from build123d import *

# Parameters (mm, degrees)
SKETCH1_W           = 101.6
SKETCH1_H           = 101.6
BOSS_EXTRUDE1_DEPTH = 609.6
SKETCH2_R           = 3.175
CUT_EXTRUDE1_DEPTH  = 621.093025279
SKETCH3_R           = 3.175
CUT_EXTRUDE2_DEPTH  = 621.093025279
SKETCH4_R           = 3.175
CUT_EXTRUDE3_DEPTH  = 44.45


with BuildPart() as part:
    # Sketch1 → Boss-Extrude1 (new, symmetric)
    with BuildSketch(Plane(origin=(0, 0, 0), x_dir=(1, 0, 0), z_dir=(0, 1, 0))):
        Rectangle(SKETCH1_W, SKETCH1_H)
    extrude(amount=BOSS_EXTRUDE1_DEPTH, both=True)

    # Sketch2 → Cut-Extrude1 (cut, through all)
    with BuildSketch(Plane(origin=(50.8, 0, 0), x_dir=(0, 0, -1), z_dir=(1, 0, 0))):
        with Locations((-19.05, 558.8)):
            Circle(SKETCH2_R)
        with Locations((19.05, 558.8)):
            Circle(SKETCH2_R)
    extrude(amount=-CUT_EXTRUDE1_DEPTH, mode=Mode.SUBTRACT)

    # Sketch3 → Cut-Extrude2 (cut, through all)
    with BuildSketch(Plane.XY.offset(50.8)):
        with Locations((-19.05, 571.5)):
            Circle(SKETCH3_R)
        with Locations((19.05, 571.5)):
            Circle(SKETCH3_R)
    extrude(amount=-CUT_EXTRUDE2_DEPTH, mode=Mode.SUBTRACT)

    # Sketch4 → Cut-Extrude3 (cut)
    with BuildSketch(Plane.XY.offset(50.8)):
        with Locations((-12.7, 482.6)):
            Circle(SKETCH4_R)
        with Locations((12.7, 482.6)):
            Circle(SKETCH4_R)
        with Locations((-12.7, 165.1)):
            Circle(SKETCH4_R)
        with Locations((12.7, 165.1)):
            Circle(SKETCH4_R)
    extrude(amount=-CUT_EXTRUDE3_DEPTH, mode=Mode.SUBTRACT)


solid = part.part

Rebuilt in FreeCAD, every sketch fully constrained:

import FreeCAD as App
import Part
import Sketcher
from FreeCAD import Vector
Q = App.Units.Quantity


def add_polygon(sketch, points):
    """Adds a closed chain of lines whose ends are joined by coincident constraints."""
    first, n = sketch.GeometryCount, len(points)
    for a, b in zip(points, points[1:] + points[:1]):
        sketch.addGeometry(Part.LineSegment(App.Vector(*a, 0), App.Vector(*b, 0)), False)
    for i in range(n):
        sketch.addConstraint(Sketcher.Constraint("Coincident", first + i, 2, first + (i + 1) % n, 1))

doc = App.newDocument("Part")
body = doc.addObject("PartDesign::Body", "Body")

# Sketch on XZ plane
sketch1 = doc.addObject("Sketcher::SketchObject", "Sketch")
body.addObject(sketch1)
sketch1.AttachmentSupport = (doc.XZ_Plane, [""])
sketch1.MapMode = "FlatFace"
add_polygon(sketch1, [(-51, -51), (-51, 51), (51, 51), (51, -51)])  # lines 0-3
sketch1.addConstraint([
    Sketcher.Constraint("Vertical", 0),
    Sketcher.Constraint("Horizontal", 1),
    Sketcher.Constraint("Vertical", 2),
    Sketcher.Constraint("Horizontal", 3),
    Sketcher.Constraint("Symmetric", 0, 2, 2, 2, -1, 1),
    Sketcher.Constraint("Equal", 3, 0),
    Sketcher.Constraint("DistanceX", 1, 1, 1, 2, Q("4 in")),
])
pad1 = doc.addObject("PartDesign::Pad", "Pad")
body.addObject(pad1)
pad1.Profile = sketch1
pad1.Length = Q("48 in")
pad1.Midplane = True

# Sketch on YZ plane
sketch2 = doc.addObject("Sketcher::SketchObject", "Sketch001")
body.addObject(sketch2)
sketch2.AttachmentSupport = (doc.YZ_Plane, [""])
sketch2.MapMode = "FlatFace"
sketch2.AttachmentOffset = App.Placement(Vector(0, 0, 2 * 25.4), App.Rotation())
sketch2.addGeometry([
    Part.Circle(Vector(558.8, 19.1, 0), Vector(0, 0, 1), 3.2),
    Part.Circle(Vector(558.8, -19.1, 0), Vector(0, 0, 1), 3.2),
], False)
sketch2.addConstraint([
    Sketcher.Constraint("Equal", 0, 1),
    Sketcher.Constraint("Symmetric", 0, 3, 1, 3, -1),
    Sketcher.Constraint("Diameter", 0, Q("0.25 in")),
    Sketcher.Constraint("DistanceX", -1, 1, 0, 3, Q("22 in")),
    Sketcher.Constraint("DistanceY", 1, 3, 0, 3, Q("1.5 in")),
])
pocket1 = doc.addObject("PartDesign::Pocket", "Pocket")
body.addObject(pocket1)
pocket1.Profile = sketch2
pocket1.Type = "ThroughAll"

# Sketch on XY plane
sketch3 = doc.addObject("Sketcher::SketchObject", "Sketch002")
body.addObject(sketch3)
sketch3.AttachmentSupport = (doc.XY_Plane, [""])
sketch3.MapMode = "FlatFace"
sketch3.AttachmentOffset = App.Placement(Vector(0, 0, 2 * 25.4), App.Rotation())
sketch3.addGeometry([
    Part.Circle(Vector(-19.1, 571.5, 0), Vector(0, 0, 1), 3.2),
    Part.Circle(Vector(19.1, 571.5, 0), Vector(0, 0, 1), 3.2),
], False)
sketch3.addConstraint([
    Sketcher.Constraint("Equal", 0, 1),
    Sketcher.Constraint("Symmetric", 0, 3, 1, 3, -2),
    Sketcher.Constraint("Diameter", 0, Q("0.25 in")),
    Sketcher.Constraint("DistanceY", -1, 1, 0, 3, Q("22.5 in")),
    Sketcher.Constraint("DistanceX", 0, 3, 1, 3, Q("1.5 in")),
])
pocket2 = doc.addObject("PartDesign::Pocket", "Pocket001")
body.addObject(pocket2)
pocket2.Profile = sketch3
pocket2.Type = "ThroughAll"

# Sketch on XY plane
sketch4 = doc.addObject("Sketcher::SketchObject", "Sketch003")
body.addObject(sketch4)
sketch4.AttachmentSupport = (doc.XY_Plane, [""])
sketch4.MapMode = "FlatFace"
sketch4.AttachmentOffset = App.Placement(Vector(0, 0, 2 * 25.4), App.Rotation())
sketch4.addGeometry([
    Part.Circle(Vector(-12.7, 482.6, 0), Vector(0, 0, 1), 3.2),
    Part.Circle(Vector(12.7, 482.6, 0), Vector(0, 0, 1), 3.2),
    Part.Circle(Vector(-12.7, 165.1, 0), Vector(0, 0, 1), 3.2),
    Part.Circle(Vector(12.7, 165.1, 0), Vector(0, 0, 1), 3.2),
], False)
sketch4.addConstraint([
    Sketcher.Constraint("Equal", 0, 1),
    Sketcher.Constraint("Equal", 1, 2),
    Sketcher.Constraint("Equal", 2, 3),
    Sketcher.Constraint("Symmetric", 0, 3, 1, 3, -2),
    Sketcher.Constraint("Symmetric", 2, 3, 3, 3, -2),
    Sketcher.Constraint("Vertical", 0, 3, 2, 3),
    Sketcher.Constraint("Diameter", 0, Q("0.25 in")),
    Sketcher.Constraint("DistanceY", -1, 1, 0, 3, Q("19 in")),
    Sketcher.Constraint("DistanceX", 0, 3, 1, 3, Q("1 in")),
    Sketcher.Constraint("DistanceY", -1, 1, 2, 3, Q("6.5 in")),
])
pocket3 = doc.addObject("PartDesign::Pocket", "Pocket002")
body.addObject(pocket3)
pocket3.Profile = sketch4
pocket3.Length = Q("1.75 in")

doc.recompute()
